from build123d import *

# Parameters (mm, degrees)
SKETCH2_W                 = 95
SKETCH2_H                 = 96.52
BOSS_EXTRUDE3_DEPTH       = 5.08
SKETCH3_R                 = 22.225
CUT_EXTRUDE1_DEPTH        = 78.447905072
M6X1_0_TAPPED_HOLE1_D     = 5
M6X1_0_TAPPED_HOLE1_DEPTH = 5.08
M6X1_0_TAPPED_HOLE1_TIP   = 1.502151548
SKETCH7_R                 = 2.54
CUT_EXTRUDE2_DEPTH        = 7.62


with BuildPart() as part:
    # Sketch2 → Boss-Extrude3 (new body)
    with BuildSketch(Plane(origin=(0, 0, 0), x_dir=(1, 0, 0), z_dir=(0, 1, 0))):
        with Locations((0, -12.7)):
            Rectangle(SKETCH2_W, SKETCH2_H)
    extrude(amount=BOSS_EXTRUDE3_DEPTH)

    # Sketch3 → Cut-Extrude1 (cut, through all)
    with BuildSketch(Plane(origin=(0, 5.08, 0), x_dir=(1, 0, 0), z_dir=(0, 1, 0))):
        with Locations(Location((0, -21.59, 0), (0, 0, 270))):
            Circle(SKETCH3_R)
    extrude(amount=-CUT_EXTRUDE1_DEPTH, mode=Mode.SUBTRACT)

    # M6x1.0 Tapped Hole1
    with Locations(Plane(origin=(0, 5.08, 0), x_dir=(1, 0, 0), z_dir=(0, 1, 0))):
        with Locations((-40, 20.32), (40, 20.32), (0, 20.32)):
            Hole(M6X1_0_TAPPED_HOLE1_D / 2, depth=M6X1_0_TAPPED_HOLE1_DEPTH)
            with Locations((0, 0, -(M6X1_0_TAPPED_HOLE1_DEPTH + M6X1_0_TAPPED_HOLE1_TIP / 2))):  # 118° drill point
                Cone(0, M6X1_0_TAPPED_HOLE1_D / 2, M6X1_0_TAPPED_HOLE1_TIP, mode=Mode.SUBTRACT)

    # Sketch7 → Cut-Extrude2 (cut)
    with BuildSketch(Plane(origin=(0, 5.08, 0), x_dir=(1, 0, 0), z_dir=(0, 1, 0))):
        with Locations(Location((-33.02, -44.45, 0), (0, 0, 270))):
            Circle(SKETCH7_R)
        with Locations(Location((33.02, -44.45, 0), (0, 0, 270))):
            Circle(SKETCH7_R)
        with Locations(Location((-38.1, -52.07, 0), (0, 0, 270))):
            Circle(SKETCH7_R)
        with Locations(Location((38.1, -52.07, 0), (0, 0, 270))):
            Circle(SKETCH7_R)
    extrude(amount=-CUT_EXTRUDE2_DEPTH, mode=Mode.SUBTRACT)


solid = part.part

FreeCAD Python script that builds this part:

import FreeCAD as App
import Part
import Sketcher

V = App.Vector
Q = App.Units.Quantity


def add_polygon(sketch, points):
    """Adds a closed chain of lines whose ends are joined by coincident constraints."""
    first, n = sketch.GeometryCount, len(points)
    for a, b in zip(points, points[1:] + points[:1]):
        sketch.addGeometry(Part.LineSegment(App.Vector(*a, 0), App.Vector(*b, 0)), False)
    for i in range(n):
        sketch.addConstraint(Sketcher.Constraint("Coincident", first + i, 2, first + (i + 1) % n, 1))

doc = App.newDocument("Part")
body = doc.addObject("PartDesign::Body", "Body")

# Sketch on XZ plane
sketch1 = doc.addObject("Sketcher::SketchObject", "Sketch")
body.addObject(sketch1)
sketch1.AttachmentSupport = (doc.XZ_Plane, [""])
sketch1.MapMode = "FlatFace"
add_polygon(sketch1, [(-48, -36), (-48, 61), (48, 61), (48, -36)])  # lines 0-3
sketch1.addConstraint([
    Sketcher.Constraint("Vertical", 0),
    Sketcher.Constraint("Horizontal", 1),
    Sketcher.Constraint("Vertical", 2),
    Sketcher.Constraint("Horizontal", 3),
    Sketcher.Constraint("DistanceY", 0, 1, 0, 2, Q("3.8 in")),
    Sketcher.Constraint("DistanceY", -1, 1, 0, 2, Q("2.4 in")),
    Sketcher.Constraint("DistanceX", 1, 1, 1, 2, 95.0),
    Sketcher.Constraint("DistanceX", 0, 2, -1, 1, 47.5),
])
pad1 = doc.addObject("PartDesign::Pad", "Pad")
body.addObject(pad1)
pad1.Profile = sketch1
pad1.Length = Q("0.2 in")
pad1.Reversed = True

# Sketch on XZ plane
sketch2 = doc.addObject("Sketcher::SketchObject", "Sketch001")
body.addObject(sketch2)
sketch2.AttachmentSupport = (doc.XZ_Plane, [""])
sketch2.MapMode = "FlatFace"
sketch2.AttachmentOffset = App.Placement(V(0, 0, -0.2 * 25.4), App.Rotation())
sketch2.addGeometry(Part.Circle(V(0, 22, 0), V(0, 0, 1), 22), False)
sketch2.addConstraint([
    Sketcher.Constraint("PointOnObject", 0, 3, -2),
    Sketcher.Constraint("Diameter", 0, Q("1.75 in")),
    Sketcher.Constraint("DistanceY", -1, 1, 0, 3, Q("0.85 in")),
])
pocket1 = doc.addObject("PartDesign::Pocket", "Pocket")
body.addObject(pocket1)
pocket1.Profile = sketch2
pocket1.Type = "ThroughAll"
pocket1.Reversed = True

# Sketch on XZ plane
sketch3 = doc.addObject("Sketcher::SketchObject", "Sketch002")
body.addObject(sketch3)
sketch3.AttachmentSupport = (doc.XZ_Plane, [""])
sketch3.MapMode = "FlatFace"
sketch3.AttachmentOffset = App.Placement(V(0, 0, -0.2 * 25.4), App.Rotation())
sketch3.addGeometry([
    Part.Circle(V(-40, -20.3, 0), V(0, 0, 1), 2.5),
    Part.Circle(V(40, -20.3, 0), V(0, 0, 1), 2.5),
    Part.Circle(V(0, -20.3, 0), V(0, 0, 1), 2.5),
], False)
sketch3.addConstraint([
    Sketcher.Constraint("Equal", 0, 1),
    Sketcher.Constraint("Equal", 1, 2),
    Sketcher.Constraint("Symmetric", 0, 3, 1, 3, -2),
    Sketcher.Constraint("PointOnObject", 2, 3, -2),
    Sketcher.Constraint("Horizontal", 1, 3, 2, 3),
    Sketcher.Constraint("DistanceY", 0, 3, -1, 1, Q("0.8 in")),
    Sketcher.Constraint("Diameter", 0, 5.0),
    Sketcher.Constraint("DistanceX", 0, 3, -1, 1, 40.0),
])
doc.recompute()
hole = doc.addObject("PartDesign::Hole", "Hole")
body.addObject(hole)
hole.Profile = sketch3
hole.ThreadType = "None"
hole.Diameter = 5
hole.DepthType = "Dimension"
hole.Depth = Q("0.2 in")
hole.DrillPoint = "Angled"
hole.DrillPointAngle = 118
hole.Reversed = True

# Sketch on XZ plane
sketch4 = doc.addObject("Sketcher::SketchObject", "Sketch003")
body.addObject(sketch4)
sketch4.AttachmentSupport = (doc.XZ_Plane, [""])
sketch4.MapMode = "FlatFace"
sketch4.AttachmentOffset = App.Placement(V(0, 0, -0.2 * 25.4), App.Rotation())
sketch4.addGeometry([
    Part.Circle(V(-33, 44.5, 0), V(0, 0, 1), 2.5),
    Part.Circle(V(33, 44.5, 0), V(0, 0, 1), 2.5),
    Part.Circle(V(-38.1, 52.1, 0), V(0, 0, 1), 2.5),
    Part.Circle(V(38.1, 52.1, 0), V(0, 0, 1), 2.5),
], False)
sketch4.addConstraint([
    Sketcher.Constraint("Equal", 0, 1),
    Sketcher.Constraint("Equal", 1, 2),
    Sketcher.Constraint("Equal", 2, 3),
    Sketcher.Constraint("Symmetric", 0, 3, 1, 3, -2),
    Sketcher.Constraint("Symmetric", 2, 3, 3, 3, -2),
    Sketcher.Constraint("Diameter", 0, Q("0.2 in")),
    Sketcher.Constraint("DistanceX", 2, 3, 3, 3, Q("3 in")),
    Sketcher.Constraint("DistanceX", 0, 3, -1, 1, Q("1.3 in")),
    Sketcher.Constraint("DistanceY", 0, 3, 2, 3, Q("0.3 in")),
    Sketcher.Constraint("DistanceY", -1, 1, 0, 3, Q("1.75 in")),
])
pocket2 = doc.addObject("PartDesign::Pocket", "Pocket001")
body.addObject(pocket2)
pocket2.Profile = sketch4
pocket2.Length = Q("0.3 in")
pocket2.Reversed = True

doc.recompute()
